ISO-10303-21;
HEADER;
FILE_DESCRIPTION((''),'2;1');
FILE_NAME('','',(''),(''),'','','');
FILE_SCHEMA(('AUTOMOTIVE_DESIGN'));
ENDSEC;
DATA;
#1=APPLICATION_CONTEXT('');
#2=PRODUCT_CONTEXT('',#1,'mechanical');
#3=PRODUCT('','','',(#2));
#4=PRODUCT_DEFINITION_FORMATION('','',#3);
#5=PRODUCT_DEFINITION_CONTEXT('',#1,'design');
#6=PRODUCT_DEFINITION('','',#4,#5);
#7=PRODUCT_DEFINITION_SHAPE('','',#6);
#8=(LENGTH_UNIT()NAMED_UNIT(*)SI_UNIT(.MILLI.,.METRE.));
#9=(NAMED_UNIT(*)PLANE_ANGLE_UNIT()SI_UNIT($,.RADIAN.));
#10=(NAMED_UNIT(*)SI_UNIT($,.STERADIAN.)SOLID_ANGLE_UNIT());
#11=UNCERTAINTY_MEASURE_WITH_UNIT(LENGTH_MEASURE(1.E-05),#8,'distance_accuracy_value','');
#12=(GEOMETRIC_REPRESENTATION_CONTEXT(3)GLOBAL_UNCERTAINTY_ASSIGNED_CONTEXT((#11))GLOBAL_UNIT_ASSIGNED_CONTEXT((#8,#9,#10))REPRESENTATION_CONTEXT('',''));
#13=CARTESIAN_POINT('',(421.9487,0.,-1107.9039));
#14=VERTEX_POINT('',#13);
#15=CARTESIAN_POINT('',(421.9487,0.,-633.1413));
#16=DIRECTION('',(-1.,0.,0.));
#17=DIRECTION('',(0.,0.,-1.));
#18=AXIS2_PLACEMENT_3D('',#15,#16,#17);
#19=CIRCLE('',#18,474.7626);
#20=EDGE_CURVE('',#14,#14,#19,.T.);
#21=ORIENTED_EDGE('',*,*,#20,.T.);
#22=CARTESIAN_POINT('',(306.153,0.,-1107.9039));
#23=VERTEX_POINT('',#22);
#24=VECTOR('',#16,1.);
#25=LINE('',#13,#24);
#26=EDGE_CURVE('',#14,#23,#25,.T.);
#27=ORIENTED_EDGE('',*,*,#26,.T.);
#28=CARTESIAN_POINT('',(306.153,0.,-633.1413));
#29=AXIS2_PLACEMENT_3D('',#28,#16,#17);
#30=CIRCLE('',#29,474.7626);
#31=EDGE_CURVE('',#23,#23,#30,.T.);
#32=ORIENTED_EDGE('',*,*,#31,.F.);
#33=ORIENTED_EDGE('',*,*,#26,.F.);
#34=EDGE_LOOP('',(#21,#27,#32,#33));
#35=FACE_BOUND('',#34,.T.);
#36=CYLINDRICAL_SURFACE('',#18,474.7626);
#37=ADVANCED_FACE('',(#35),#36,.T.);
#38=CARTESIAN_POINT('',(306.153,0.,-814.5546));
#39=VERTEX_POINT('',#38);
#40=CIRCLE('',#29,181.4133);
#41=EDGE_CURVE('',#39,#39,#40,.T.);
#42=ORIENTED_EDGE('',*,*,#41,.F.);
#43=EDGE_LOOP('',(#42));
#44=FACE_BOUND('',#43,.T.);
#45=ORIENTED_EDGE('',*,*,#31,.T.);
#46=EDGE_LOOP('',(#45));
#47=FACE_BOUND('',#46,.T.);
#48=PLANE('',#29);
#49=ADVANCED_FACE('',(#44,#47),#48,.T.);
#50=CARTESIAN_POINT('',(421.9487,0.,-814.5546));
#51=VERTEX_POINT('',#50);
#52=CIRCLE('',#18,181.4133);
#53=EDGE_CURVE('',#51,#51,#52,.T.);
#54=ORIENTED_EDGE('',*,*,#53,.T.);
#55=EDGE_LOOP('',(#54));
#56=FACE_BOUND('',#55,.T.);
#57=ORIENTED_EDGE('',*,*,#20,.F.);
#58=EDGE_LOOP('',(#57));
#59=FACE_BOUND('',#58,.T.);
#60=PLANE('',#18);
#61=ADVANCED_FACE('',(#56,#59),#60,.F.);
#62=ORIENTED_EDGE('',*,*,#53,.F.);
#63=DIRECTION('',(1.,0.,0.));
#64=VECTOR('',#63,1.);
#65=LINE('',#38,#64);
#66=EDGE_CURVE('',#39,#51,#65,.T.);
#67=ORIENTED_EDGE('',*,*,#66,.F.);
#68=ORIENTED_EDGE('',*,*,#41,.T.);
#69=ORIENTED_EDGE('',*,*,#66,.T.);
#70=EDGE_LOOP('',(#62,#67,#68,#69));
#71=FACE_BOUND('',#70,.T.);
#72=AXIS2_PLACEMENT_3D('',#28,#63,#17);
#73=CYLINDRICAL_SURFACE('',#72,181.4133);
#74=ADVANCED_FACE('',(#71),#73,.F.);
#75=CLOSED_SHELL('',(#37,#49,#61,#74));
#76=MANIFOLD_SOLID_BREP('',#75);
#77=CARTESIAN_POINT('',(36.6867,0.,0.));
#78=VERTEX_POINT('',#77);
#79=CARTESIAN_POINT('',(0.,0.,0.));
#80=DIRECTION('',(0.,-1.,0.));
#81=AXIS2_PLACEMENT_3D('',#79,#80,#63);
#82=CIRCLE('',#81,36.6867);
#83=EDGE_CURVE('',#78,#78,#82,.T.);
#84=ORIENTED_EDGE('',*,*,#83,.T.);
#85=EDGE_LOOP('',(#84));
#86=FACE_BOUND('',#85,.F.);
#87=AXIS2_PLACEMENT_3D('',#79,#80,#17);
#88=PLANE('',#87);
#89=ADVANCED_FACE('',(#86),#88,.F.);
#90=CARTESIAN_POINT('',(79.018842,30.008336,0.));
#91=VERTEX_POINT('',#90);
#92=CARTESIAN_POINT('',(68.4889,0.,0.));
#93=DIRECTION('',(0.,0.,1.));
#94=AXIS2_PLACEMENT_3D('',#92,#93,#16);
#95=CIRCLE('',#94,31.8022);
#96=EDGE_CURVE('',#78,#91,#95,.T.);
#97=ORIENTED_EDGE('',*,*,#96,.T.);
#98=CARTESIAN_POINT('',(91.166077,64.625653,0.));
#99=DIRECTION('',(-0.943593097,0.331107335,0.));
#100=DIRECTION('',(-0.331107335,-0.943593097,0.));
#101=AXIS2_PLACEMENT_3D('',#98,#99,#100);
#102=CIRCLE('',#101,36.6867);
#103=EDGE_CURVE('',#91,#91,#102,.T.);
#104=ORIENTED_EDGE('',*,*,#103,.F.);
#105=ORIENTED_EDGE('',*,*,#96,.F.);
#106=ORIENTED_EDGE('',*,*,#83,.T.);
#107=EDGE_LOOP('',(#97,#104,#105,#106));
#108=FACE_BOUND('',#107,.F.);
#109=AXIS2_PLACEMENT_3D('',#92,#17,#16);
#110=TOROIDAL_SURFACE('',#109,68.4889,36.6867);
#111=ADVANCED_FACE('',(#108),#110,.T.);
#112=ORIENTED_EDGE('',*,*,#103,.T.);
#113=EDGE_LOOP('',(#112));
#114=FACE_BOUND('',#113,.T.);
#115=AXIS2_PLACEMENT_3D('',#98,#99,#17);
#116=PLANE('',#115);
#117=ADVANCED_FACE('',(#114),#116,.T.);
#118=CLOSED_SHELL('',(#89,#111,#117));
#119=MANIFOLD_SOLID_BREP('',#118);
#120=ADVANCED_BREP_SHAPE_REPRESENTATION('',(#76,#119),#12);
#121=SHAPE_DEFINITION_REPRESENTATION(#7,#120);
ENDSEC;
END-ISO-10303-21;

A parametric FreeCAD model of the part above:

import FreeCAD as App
import Part
import Sketcher

V = App.Vector

doc = App.newDocument("Part")
body = doc.addObject("PartDesign::Body", "Body")
body.AllowCompound = True

# Sketch on XZ plane
sketch1 = body.newObject("Sketcher::SketchObject", "Sketch")
sketch1.AttachmentSupport = (doc.getObject("XZ_Plane"), [""])
sketch1.MapMode = "FlatFace"
sketch1.addGeometry(Part.Circle(V(0, 0, 0), V(0, 0, 1), 36.6867), False)
sketch1.addGeometry(Part.LineSegment(V(68.4889, 0, 0), V(68.4889, 10, 0)), True)  # axis
sketch1.addConstraint([
    Sketcher.Constraint("Vertical", 1),
    Sketcher.Constraint("Coincident", 0, 3, -1, 1),
    Sketcher.Constraint("PointOnObject", 1, 1, -1),
    Sketcher.Constraint("DistanceY", 1, 1, 1, 2, 10.0),
    Sketcher.Constraint("Diameter", 0, 73.3734),
    Sketcher.Constraint("DistanceX", -1, 1, 1, 1, 68.489),
])
revolution = body.newObject("PartDesign::Revolution", "Revolution")
revolution.Profile = sketch1
revolution.ReferenceAxis = (sketch1, ["Axis0"])
revolution.Angle = 250.664

# Sketch on XZ plane
sketch2 = body.newObject("Sketcher::SketchObject", "Sketch001")
sketch2.AttachmentSupport = (doc.getObject("XZ_Plane"), [""])
sketch2.MapMode = "FlatFace"
sketch2.addGeometry([
    Part.LineSegment(V(306.153, -814.5546, 0), V(421.9487, -814.5546, 0)),
    Part.LineSegment(V(421.9487, -814.5546, 0), V(421.9487, -1107.9039, 0)),
    Part.LineSegment(V(421.9487, -1107.9039, 0), V(306.153, -1107.9039, 0)),
    Part.LineSegment(V(306.153, -1107.9039, 0), V(306.153, -814.5546, 0)),
], False)
sketch2.addGeometry(Part.LineSegment(V(421.9487, -633.1413, 0), V(306.153, -633.1413, 0)), True)  # axis
sketch2.addConstraint([
    Sketcher.Constraint("Coincident", 0, 2, 1, 1),
    Sketcher.Constraint("Coincident", 1, 2, 2, 1),
    Sketcher.Constraint("Coincident", 2, 2, 3, 1),
    Sketcher.Constraint("Coincident", 3, 2, 0, 1),
    Sketcher.Constraint("Horizontal", 0),
    Sketcher.Constraint("Vertical", 1),
    Sketcher.Constraint("Horizontal", 2),
    Sketcher.Constraint("Vertical", 3),
    Sketcher.Constraint("Horizontal", 4),
    Sketcher.Constraint("Vertical", 1, 2, 4, 1),
    Sketcher.Constraint("Vertical", 3, 2, 4, 2),
    Sketcher.Constraint("DistanceX", 0, 1, 0, 2, 115.7957),
    Sketcher.Constraint("DistanceY", 1, 2, 1, 1, 293.3493),
    Sketcher.Constraint("DistanceY", 1, 2, -1, 1, 1107.904),
    Sketcher.Constraint("DistanceX", -1, 1, 2, 2, 306.153),
    Sketcher.Constraint("DistanceY", 4, 1, -1, 1, 633.1413),
])
revolution2 = body.newObject("PartDesign::Revolution", "Revolution001")
revolution2.Profile = sketch2
revolution2.ReferenceAxis = (sketch2, ["Axis0"])
revolution2.Angle = 360

doc.recompute()
